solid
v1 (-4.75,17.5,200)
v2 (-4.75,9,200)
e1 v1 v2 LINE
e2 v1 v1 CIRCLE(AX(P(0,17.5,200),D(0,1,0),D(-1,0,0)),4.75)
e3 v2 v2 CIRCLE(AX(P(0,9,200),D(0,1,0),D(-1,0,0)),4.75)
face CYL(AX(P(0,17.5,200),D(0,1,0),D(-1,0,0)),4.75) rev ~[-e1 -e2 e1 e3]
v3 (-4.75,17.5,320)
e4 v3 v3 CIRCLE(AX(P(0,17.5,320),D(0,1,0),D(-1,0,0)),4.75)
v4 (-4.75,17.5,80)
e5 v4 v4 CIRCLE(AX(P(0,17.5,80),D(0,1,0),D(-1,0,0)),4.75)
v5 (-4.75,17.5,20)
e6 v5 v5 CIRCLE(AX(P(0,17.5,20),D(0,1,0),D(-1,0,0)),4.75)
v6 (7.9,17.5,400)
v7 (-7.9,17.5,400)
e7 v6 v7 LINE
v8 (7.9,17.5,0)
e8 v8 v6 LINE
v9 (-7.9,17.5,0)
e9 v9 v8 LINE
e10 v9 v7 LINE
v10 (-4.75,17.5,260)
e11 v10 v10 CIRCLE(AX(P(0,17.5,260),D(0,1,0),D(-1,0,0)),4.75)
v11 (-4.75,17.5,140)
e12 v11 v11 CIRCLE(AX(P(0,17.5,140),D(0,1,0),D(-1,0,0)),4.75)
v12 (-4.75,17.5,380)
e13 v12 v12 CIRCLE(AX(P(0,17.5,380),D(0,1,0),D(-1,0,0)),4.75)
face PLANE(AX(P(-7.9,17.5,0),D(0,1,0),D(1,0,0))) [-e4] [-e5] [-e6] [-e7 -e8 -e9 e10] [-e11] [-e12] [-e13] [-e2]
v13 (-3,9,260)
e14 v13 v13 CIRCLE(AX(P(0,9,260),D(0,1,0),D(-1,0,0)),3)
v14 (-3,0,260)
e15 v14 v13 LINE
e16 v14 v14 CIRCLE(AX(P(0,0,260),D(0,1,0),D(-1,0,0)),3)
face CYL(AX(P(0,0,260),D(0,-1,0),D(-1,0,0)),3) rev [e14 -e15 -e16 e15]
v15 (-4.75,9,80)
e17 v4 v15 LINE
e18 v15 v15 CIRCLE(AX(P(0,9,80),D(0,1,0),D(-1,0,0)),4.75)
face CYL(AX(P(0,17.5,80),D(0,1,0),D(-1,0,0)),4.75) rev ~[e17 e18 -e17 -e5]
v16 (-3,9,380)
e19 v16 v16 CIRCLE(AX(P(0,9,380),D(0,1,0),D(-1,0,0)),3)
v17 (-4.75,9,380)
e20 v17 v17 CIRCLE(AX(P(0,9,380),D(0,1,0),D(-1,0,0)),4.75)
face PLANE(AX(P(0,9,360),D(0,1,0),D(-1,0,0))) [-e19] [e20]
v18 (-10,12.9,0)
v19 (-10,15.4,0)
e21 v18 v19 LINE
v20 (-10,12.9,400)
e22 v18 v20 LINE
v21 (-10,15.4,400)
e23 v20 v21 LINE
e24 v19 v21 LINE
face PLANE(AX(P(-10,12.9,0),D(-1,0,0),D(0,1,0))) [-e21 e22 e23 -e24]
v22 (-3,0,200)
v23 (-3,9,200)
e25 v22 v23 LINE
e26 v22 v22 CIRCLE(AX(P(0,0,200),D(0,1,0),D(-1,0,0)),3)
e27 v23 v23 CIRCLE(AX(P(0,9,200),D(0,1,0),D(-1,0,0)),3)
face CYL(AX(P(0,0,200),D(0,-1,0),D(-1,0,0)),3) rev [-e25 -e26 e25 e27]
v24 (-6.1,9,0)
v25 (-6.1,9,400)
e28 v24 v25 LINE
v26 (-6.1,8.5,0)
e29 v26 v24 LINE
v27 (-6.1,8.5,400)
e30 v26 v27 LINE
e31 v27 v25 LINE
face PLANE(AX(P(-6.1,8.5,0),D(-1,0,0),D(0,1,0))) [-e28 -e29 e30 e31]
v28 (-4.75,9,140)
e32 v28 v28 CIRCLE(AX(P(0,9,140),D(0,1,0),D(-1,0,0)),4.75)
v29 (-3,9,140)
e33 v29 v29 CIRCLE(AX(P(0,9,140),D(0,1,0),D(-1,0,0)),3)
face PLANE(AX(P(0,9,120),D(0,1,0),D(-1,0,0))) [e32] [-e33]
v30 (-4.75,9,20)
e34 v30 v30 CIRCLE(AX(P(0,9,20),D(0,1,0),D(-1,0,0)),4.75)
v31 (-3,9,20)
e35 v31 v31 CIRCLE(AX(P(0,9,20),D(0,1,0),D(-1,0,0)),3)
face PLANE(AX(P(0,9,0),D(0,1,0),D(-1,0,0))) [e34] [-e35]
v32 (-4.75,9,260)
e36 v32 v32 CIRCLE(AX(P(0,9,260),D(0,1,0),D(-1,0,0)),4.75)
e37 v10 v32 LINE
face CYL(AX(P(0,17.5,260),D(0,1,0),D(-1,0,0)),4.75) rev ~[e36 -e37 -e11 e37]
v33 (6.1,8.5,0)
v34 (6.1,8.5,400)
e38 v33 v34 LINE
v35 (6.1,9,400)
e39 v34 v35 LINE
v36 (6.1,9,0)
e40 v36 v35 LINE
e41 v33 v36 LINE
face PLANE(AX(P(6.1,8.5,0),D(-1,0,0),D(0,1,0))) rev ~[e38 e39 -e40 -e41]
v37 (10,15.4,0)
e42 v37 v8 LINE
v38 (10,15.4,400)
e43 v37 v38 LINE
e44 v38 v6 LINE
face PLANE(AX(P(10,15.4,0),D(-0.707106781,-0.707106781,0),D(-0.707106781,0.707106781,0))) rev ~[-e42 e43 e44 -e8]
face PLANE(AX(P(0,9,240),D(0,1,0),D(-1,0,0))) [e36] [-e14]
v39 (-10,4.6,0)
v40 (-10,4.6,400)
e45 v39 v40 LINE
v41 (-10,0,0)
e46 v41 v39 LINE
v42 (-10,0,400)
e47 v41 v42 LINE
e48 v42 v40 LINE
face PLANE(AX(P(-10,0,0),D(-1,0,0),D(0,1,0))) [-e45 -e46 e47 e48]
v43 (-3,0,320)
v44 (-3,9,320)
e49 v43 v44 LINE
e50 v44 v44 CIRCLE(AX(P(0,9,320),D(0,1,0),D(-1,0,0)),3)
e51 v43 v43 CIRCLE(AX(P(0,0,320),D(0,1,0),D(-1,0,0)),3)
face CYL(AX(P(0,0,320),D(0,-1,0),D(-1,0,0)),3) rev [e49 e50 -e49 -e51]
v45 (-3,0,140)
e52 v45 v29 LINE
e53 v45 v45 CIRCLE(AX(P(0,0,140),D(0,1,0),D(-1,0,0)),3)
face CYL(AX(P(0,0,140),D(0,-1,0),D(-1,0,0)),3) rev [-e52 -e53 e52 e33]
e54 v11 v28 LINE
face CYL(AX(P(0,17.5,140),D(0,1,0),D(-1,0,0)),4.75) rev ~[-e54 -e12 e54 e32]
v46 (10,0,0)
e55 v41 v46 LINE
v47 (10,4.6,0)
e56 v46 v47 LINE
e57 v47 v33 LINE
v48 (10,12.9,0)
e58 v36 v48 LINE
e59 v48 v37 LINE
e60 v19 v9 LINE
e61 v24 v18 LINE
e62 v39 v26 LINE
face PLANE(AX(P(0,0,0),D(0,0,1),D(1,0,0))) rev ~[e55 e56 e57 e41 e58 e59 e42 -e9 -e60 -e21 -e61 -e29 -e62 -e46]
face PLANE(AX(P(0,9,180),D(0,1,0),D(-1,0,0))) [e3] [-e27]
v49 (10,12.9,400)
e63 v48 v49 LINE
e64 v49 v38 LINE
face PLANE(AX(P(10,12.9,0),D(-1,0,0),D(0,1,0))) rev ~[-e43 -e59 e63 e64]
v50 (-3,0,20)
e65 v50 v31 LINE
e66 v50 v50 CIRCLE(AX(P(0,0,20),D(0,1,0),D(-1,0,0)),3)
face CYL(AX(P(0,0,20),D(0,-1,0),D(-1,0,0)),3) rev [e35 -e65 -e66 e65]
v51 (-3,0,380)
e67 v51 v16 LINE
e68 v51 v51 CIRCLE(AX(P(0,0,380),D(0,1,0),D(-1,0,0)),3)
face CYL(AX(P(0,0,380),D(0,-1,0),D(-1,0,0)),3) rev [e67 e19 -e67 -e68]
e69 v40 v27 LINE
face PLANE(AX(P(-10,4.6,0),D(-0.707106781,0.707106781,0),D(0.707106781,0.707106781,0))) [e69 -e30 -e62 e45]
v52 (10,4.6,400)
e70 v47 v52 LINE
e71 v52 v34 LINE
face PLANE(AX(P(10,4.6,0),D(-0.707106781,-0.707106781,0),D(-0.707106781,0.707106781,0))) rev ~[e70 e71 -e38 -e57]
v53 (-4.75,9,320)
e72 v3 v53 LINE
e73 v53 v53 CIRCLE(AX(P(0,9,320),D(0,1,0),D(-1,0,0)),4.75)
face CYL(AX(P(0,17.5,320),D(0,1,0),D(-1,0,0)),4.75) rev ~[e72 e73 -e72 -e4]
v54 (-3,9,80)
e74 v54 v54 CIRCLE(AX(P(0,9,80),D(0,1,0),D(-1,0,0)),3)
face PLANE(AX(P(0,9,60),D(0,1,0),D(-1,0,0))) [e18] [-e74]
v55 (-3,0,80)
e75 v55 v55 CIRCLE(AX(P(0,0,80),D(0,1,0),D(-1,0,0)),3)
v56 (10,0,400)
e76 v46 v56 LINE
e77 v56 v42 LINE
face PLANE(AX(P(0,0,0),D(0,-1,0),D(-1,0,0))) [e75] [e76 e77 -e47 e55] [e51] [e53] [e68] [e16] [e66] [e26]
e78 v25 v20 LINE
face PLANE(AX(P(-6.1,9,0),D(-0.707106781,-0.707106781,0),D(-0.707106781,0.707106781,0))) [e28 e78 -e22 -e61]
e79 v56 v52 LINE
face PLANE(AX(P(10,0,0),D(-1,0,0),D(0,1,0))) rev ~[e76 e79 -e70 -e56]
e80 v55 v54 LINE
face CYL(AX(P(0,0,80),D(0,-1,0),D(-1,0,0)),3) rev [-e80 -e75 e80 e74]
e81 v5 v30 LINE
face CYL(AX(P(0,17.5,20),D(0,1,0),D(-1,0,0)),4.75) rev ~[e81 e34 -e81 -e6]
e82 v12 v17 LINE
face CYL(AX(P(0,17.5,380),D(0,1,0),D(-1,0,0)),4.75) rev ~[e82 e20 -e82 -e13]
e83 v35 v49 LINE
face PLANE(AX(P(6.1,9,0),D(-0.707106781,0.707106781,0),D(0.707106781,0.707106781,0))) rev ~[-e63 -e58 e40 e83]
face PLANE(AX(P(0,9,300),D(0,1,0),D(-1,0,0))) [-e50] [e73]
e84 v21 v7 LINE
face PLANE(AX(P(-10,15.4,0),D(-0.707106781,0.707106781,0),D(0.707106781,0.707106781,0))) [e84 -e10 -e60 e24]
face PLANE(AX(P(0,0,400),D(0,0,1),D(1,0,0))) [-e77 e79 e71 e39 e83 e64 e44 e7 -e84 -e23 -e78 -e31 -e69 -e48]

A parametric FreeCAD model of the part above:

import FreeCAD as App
import Part
import Sketcher

V = App.Vector

doc = App.newDocument("Part")
body = doc.addObject("PartDesign::Body", "Body")

sketch1 = body.newObject("Sketcher::SketchObject", "Sketch")
sketch1.AttachmentSupport = (doc.getObject("XY_Plane"), [""])
sketch1.MapMode = "FlatFace"
sketch1.addGeometry([
    Part.LineSegment(V(-10, 0, 0), V(10, 0, 0)),
    Part.LineSegment(V(10, 0, 0), V(10, 4.6, 0)),
    Part.LineSegment(V(10, 4.6, 0), V(6.1, 8.5, 0)),
    Part.LineSegment(V(6.1, 8.5, 0), V(6.1, 9, 0)),
    Part.LineSegment(V(6.1, 9, 0), V(10, 12.9, 0)),
    Part.LineSegment(V(10, 12.9, 0), V(10, 15.4, 0)),
    Part.LineSegment(V(10, 15.4, 0), V(7.9, 17.5, 0)),
    Part.LineSegment(V(7.9, 17.5, 0), V(-7.9, 17.5, 0)),
    Part.LineSegment(V(-7.9, 17.5, 0), V(-10, 15.4, 0)),
    Part.LineSegment(V(-10, 15.4, 0), V(-10, 12.9, 0)),
    Part.LineSegment(V(-10, 12.9, 0), V(-6.1, 9, 0)),
    Part.LineSegment(V(-6.1, 9, 0), V(-6.1, 8.5, 0)),
    Part.LineSegment(V(-6.1, 8.5, 0), V(-10, 4.6, 0)),
    Part.LineSegment(V(-10, 4.6, 0), V(-10, 0, 0)),
], False)
sketch1.addConstraint([
    Sketcher.Constraint("Coincident", 0, 2, 1, 1),
    Sketcher.Constraint("Coincident", 1, 2, 2, 1),
    Sketcher.Constraint("Coincident", 2, 2, 3, 1),
    Sketcher.Constraint("Coincident", 3, 2, 4, 1),
    Sketcher.Constraint("Coincident", 4, 2, 5, 1),
    Sketcher.Constraint("Coincident", 5, 2, 6, 1),
    Sketcher.Constraint("Coincident", 6, 2, 7, 1),
    Sketcher.Constraint("Coincident", 7, 2, 8, 1),
    Sketcher.Constraint("Coincident", 8, 2, 9, 1),
    Sketcher.Constraint("Coincident", 9, 2, 10, 1),
    Sketcher.Constraint("Coincident", 10, 2, 11, 1),
    Sketcher.Constraint("Coincident", 11, 2, 12, 1),
    Sketcher.Constraint("Coincident", 12, 2, 13, 1),
    Sketcher.Constraint("Coincident", 13, 2, 0, 1),
    Sketcher.Constraint("Horizontal", 0),
    Sketcher.Constraint("Vertical", 1),
    Sketcher.Constraint("Vertical", 3),
    Sketcher.Constraint("Vertical", 5),
    Sketcher.Constraint("Horizontal", 7),
    Sketcher.Constraint("Vertical", 9),
    Sketcher.Constraint("Vertical", 11),
    Sketcher.Constraint("Vertical", 13),
    Sketcher.Constraint("Symmetric", 0, 2, 13, 2, -1, 1),
    Sketcher.Constraint("Symmetric", 5, 2, 8, 2, -2),
    Sketcher.Constraint("Symmetric", 3, 2, 10, 2, -2),
    Sketcher.Constraint("Perpendicular", 2, 4),
    Sketcher.Constraint("Perpendicular", 4, 6),
    Sketcher.Constraint("Perpendicular", 6, 8),
    Sketcher.Constraint("Perpendicular", 8, 10),
    Sketcher.Constraint("Perpendicular", 10, 12),
    Sketcher.Constraint("Horizontal", 4, 2, 9, 2),
    Sketcher.Constraint("Horizontal", 2, 2, 11, 2),
    Sketcher.Constraint("Vertical", 1, 2, 4, 2),
    Sketcher.Constraint("DistanceX", 0, 1, 0, 2, 20.0),
    Sketcher.Constraint("DistanceY", 1, 1, 1, 2, 4.6),
    Sketcher.Constraint("DistanceY", 3, 1, 3, 2, 0.5),
    Sketcher.Constraint("DistanceY", 5, 1, 5, 2, 2.5),
    Sketcher.Constraint("DistanceY", -1, 1, 2, 2, 8.5),
    Sketcher.Constraint("DistanceY", -1, 1, 6, 2, 17.5),
])
pad1 = body.newObject("PartDesign::Pad", "Pad")
pad1.Profile = sketch1
pad1.Length = 400

sketch2 = body.newObject("Sketcher::SketchObject", "Sketch001")
sketch2.AttachmentSupport = (doc.getObject("XZ_Plane"), [""])
sketch2.MapMode = "FlatFace"
sketch2.addGeometry(Part.Circle(V(0, 20, 0), V(0, 0, 1), 3), False)
sketch2.addConstraint([
    Sketcher.Constraint("PointOnObject", 0, 3, -2),
    Sketcher.Constraint("Diameter", 0, 6.0),
    Sketcher.Constraint("DistanceY", -1, 1, 0, 3, 20.0),
])
pocket1 = body.newObject("PartDesign::Pocket", "Pocket")
pocket1.Profile = sketch2
pocket1.Type = "ThroughAll"

sketch3 = body.newObject("Sketcher::SketchObject", "Sketch002")
sketch3.AttachmentSupport = (doc.getObject("XZ_Plane"), [""])
sketch3.MapMode = "FlatFace"
sketch3.AttachmentOffset = App.Placement(V(0, 0, -17.5), App.Rotation())
sketch3.addGeometry([
    Part.Circle(V(0, 20, 0), V(0, 0, 1), 4.8),
    Part.Circle(V(0, 20, 0), V(0, 0, 1), 3),
], False)
sketch3.addConstraint([
    Sketcher.Constraint("Coincident", 1, 3, 0, 3),
    Sketcher.Constraint("PointOnObject", 0, 3, -2),
    Sketcher.Constraint("Diameter", 1, 6.0),
    Sketcher.Constraint("Diameter", 0, 9.5),
    Sketcher.Constraint("DistanceY", -1, 1, 0, 3, 20.0),
])
pocket2 = body.newObject("PartDesign::Pocket", "Pocket001")
pocket2.Profile = sketch3
pocket2.Length = 8.5
pocket2.Reversed = True
doc.recompute()

linearpattern = body.newObject("PartDesign::LinearPattern", "LinearPattern")
linearpattern.Originals = [pocket1, pocket2]
linearpattern.Direction = (doc.getObject("Z_Axis"), [""])
linearpattern.Mode = "offset"
linearpattern.Offset = 60
linearpattern.Occurrences = 9
body.Tip = linearpattern

doc.recompute()
